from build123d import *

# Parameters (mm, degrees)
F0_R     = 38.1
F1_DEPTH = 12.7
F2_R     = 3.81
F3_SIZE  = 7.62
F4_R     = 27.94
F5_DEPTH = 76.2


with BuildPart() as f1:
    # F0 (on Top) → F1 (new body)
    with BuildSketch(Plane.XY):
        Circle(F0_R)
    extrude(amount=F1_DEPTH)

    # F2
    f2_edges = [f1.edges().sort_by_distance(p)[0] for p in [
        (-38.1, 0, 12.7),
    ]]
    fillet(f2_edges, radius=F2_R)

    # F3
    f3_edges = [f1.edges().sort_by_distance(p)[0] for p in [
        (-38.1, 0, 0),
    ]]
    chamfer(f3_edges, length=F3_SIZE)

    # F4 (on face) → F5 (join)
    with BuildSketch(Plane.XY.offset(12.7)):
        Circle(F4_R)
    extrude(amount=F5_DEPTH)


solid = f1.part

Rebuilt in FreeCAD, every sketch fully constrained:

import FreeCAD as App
import Part
import Sketcher

V = App.Vector
Q = App.Units.Quantity


def edges_at(feature, points):
    """Names of the edges that pass closest to the given points."""
    edges = feature.Shape.Edges
    near = lambda p: min(range(len(edges)), key=lambda i: edges[i].distToShape(Part.Vertex(*p))[0])
    return sorted({f"Edge{near(p) + 1}" for p in points})

doc = App.newDocument("Part")
body = doc.addObject("PartDesign::Body", "Body")

# Sketch on XY plane
sketch1 = body.newObject("Sketcher::SketchObject", "Sketch")
sketch1.AttachmentSupport = (doc.getObject("XY_Plane"), [""])
sketch1.MapMode = "FlatFace"
sketch1.addGeometry(Part.Circle(V(0, 0, 0), V(0, 0, 1), 38), False)
sketch1.addConstraint([
    Sketcher.Constraint("Coincident", 0, 3, -1, 1),
    Sketcher.Constraint("Diameter", 0, Q("3 in")),
])
pad1 = body.newObject("PartDesign::Pad", "Pad")
pad1.Profile = sketch1
pad1.Length = Q("0.5 in")
doc.recompute()

fillet = body.newObject("PartDesign::Fillet", "Fillet")
fillet.Base = (pad1, edges_at(pad1, [(-38.1, 0, 12.7)]))
fillet.Radius = Q("0.15 in")
doc.recompute()

chamfer = body.newObject("PartDesign::Chamfer", "Chamfer")
chamfer.Base = (fillet, edges_at(fillet, [(-38.1, 0, 0)]))
chamfer.Size = Q("0.3 in")

# Sketch on XY plane
sketch2 = body.newObject("Sketcher::SketchObject", "Sketch001")
sketch2.AttachmentSupport = (doc.getObject("XY_Plane"), [""])
sketch2.MapMode = "FlatFace"
sketch2.AttachmentOffset = App.Placement(V(0, 0, 0.5 * 25.4), App.Rotation())
sketch2.addGeometry(Part.Circle(V(0, 0, 0), V(0, 0, 1), 28), False)
sketch2.addConstraint([
    Sketcher.Constraint("Coincident", 0, 3, -1, 1),
    Sketcher.Constraint("Diameter", 0, Q("2.2 in")),
])
pad2 = body.newObject("PartDesign::Pad", "Pad001")
pad2.Profile = sketch2
pad2.Length = Q("3 in")

doc.recompute()
